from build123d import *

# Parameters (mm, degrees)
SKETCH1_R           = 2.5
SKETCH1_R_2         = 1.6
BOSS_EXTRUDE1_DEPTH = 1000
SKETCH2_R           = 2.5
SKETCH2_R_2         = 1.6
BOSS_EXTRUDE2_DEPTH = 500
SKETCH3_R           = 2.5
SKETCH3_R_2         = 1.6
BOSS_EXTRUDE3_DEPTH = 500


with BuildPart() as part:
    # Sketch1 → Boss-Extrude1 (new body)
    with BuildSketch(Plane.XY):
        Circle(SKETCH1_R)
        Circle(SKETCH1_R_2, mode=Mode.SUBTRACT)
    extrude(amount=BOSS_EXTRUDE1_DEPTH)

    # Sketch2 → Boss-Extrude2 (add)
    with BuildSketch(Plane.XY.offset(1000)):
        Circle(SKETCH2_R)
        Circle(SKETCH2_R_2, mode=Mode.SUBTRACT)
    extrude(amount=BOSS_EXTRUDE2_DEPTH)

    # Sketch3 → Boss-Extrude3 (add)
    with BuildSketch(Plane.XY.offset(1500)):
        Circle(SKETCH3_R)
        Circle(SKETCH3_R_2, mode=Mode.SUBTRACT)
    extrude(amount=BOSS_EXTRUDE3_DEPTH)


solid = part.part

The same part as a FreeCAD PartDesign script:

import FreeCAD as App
import Part
import Sketcher

doc = App.newDocument("Part")
body = doc.addObject("PartDesign::Body", "Body")

sketch1 = body.newObject("Sketcher::SketchObject", "Sketch")
sketch1.AttachmentSupport = (doc.getObject("XY_Plane"), [""])
sketch1.MapMode = "FlatFace"
sketch1.addGeometry([
    Part.Circle(App.Vector(0, 0, 0), App.Vector(0, 0, 1), 2.5),
    Part.Circle(App.Vector(0, 0, 0), App.Vector(0, 0, 1), 1.6),
], False)
sketch1.addConstraint([
    Sketcher.Constraint("Coincident", 0, 3, -1, 1),
    Sketcher.Constraint("Coincident", 1, 3, -1, 1),
    Sketcher.Constraint("Diameter", 0, 5.0),
    Sketcher.Constraint("Diameter", 1, 3.2),
])
pad1 = body.newObject("PartDesign::Pad", "Pad")
pad1.Profile = sketch1
pad1.Length = 1000

sketch2 = body.newObject("Sketcher::SketchObject", "Sketch001")
sketch2.AttachmentSupport = (doc.getObject("XY_Plane"), [""])
sketch2.MapMode = "FlatFace"
sketch2.AttachmentOffset = App.Placement(App.Vector(0, 0, 1000), App.Rotation())
sketch2.addGeometry([
    Part.Circle(App.Vector(0, 0, 0), App.Vector(0, 0, 1), 2.5),
    Part.Circle(App.Vector(0, 0, 0), App.Vector(0, 0, 1), 1.6),
], False)
sketch2.addConstraint([
    Sketcher.Constraint("Coincident", 0, 3, -1, 1),
    Sketcher.Constraint("Coincident", 1, 3, -1, 1),
    Sketcher.Constraint("Diameter", 0, 5.0),
    Sketcher.Constraint("Diameter", 1, 3.2),
])
pad2 = body.newObject("PartDesign::Pad", "Pad001")
pad2.Profile = sketch2
pad2.Length = 500

sketch3 = body.newObject("Sketcher::SketchObject", "Sketch002")
sketch3.AttachmentSupport = (doc.getObject("XY_Plane"), [""])
sketch3.MapMode = "FlatFace"
sketch3.AttachmentOffset = App.Placement(App.Vector(0, 0, 1500), App.Rotation())
sketch3.addGeometry([
    Part.Circle(App.Vector(0, 0, 0), App.Vector(0, 0, 1), 2.5),
    Part.Circle(App.Vector(0, 0, 0), App.Vector(0, 0, 1), 1.6),
], False)
sketch3.addConstraint([
    Sketcher.Constraint("Coincident", 0, 3, -1, 1),
    Sketcher.Constraint("Coincident", 1, 3, -1, 1),
    Sketcher.Constraint("Diameter", 0, 5.0),
    Sketcher.Constraint("Diameter", 1, 3.2),
])
pad3 = body.newObject("PartDesign::Pad", "Pad002")
pad3.Profile = sketch3
pad3.Length = 500

doc.recompute()
